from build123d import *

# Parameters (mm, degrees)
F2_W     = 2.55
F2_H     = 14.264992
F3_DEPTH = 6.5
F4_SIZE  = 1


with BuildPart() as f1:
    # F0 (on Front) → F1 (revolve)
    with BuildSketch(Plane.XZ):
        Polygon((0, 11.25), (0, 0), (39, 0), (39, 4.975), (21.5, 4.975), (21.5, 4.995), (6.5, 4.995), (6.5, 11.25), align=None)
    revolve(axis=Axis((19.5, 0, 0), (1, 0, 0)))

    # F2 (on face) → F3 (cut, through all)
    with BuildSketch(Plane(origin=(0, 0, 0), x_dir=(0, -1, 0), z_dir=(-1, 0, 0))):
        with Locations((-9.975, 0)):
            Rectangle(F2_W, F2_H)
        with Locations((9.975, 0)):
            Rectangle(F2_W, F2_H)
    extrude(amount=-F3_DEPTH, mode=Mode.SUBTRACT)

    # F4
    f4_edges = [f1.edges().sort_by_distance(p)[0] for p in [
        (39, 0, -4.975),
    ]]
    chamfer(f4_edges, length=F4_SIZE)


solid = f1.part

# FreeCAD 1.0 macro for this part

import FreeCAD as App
import Part
import Sketcher
from FreeCAD import Vector
Q = App.Units.Quantity


def edges_at(feature, points):
    """Names of the edges that pass closest to the given points."""
    edges = feature.Shape.Edges
    near = lambda p: min(range(len(edges)), key=lambda i: edges[i].distToShape(Part.Vertex(*p))[0])
    return sorted({f"Edge{near(p) + 1}" for p in points})


def add_polygon(sketch, points):
    """Adds a closed chain of lines whose ends are joined by coincident constraints."""
    first, n = sketch.GeometryCount, len(points)
    for a, b in zip(points, points[1:] + points[:1]):
        sketch.addGeometry(Part.LineSegment(App.Vector(*a, 0), App.Vector(*b, 0)), False)
    for i in range(n):
        sketch.addConstraint(Sketcher.Constraint("Coincident", first + i, 2, first + (i + 1) % n, 1))

doc = App.newDocument("Part")
body = doc.addObject("PartDesign::Body", "Body")

# Sketch on XZ plane
sketch1 = body.newObject("Sketcher::SketchObject", "Sketch")
sketch1.AttachmentSupport = (doc.getObject("XZ_Plane"), [""])
sketch1.MapMode = "FlatFace"
add_polygon(sketch1, [(0, 11.25), (0, 0), (39, 0), (39, 4.975), (21.5, 4.975), (21.5, 4.995), (6.5, 4.995), (6.5, 11.25)])  # lines 0-7
sketch1.addConstraint([
    Sketcher.Constraint("Vertical", 0),
    Sketcher.Constraint("Horizontal", 1),
    Sketcher.Constraint("Vertical", 2),
    Sketcher.Constraint("Horizontal", 3),
    Sketcher.Constraint("Vertical", 4),
    Sketcher.Constraint("Horizontal", 5),
    Sketcher.Constraint("Vertical", 6),
    Sketcher.Constraint("Horizontal", 7),
    Sketcher.Constraint("Coincident", 0, 2, -1, 1),
    Sketcher.Constraint("DistanceX", 1, 1, 1, 2, Q("39 mm")),
    Sketcher.Constraint("DistanceX", 5, 2, 5, 1, Q("15 mm")),
    Sketcher.Constraint("DistanceX", 3, 2, 3, 1, Q("17.5 mm")),
    Sketcher.Constraint("DistanceY", 0, 2, 0, 1, Q("11.25 mm")),
    Sketcher.Constraint("DistanceY", 4, 1, 4, 2, Q("0.02 mm")),
    Sketcher.Constraint("DistanceY", 2, 1, 2, 2, Q("4.975 mm")),
])
revolution = body.newObject("PartDesign::Revolution", "Revolution")
revolution.Profile = sketch1
revolution.ReferenceAxis = (sketch1, ["H_Axis"])
revolution.Angle = 360

# Sketch on YZ plane
sketch2 = body.newObject("Sketcher::SketchObject", "Sketch001")
sketch2.AttachmentSupport = (doc.getObject("YZ_Plane"), [""])
sketch2.MapMode = "FlatFace"
add_polygon(sketch2, [(11.25, 7.132496), (11.25, -7.132496), (8.7, -7.132496), (8.7, 7.132496)])  # lines 0-3
add_polygon(sketch2, [(-8.7, 7.132496), (-8.7, -7.132496), (-11.25, -7.132496), (-11.25, 7.132496)])  # lines 4-7
sketch2.addConstraint([
    Sketcher.Constraint("Vertical", 0),
    Sketcher.Constraint("Horizontal", 1),
    Sketcher.Constraint("Vertical", 2),
    Sketcher.Constraint("Horizontal", 3),
    Sketcher.Constraint("Vertical", 4),
    Sketcher.Constraint("Horizontal", 5),
    Sketcher.Constraint("Vertical", 6),
    Sketcher.Constraint("Horizontal", 7),
    Sketcher.Constraint("Symmetric", 2, 2, 4, 2, -1, 1),
    Sketcher.Constraint("Symmetric", 0, 2, 6, 2, -1, 1),
    Sketcher.Constraint("Horizontal", 1, 2, 4, 2),
    Sketcher.Constraint("DistanceX", 1, 2, 1, 1, Q("2.55 mm")),
    Sketcher.Constraint("DistanceX", -1, 1, 1, 2, Q("8.7 mm")),
    Sketcher.Constraint("DistanceY", 0, 2, 0, 1, Q("14.264992 mm")),
])
pocket1 = body.newObject("PartDesign::Pocket", "Pocket")
pocket1.Profile = sketch2
pocket1.Type = "ThroughAll"
pocket1.Reversed = True
doc.recompute()

chamfer = body.newObject("PartDesign::Chamfer", "Chamfer")
chamfer.Base = (pocket1, edges_at(pocket1, [(39, 0, -4.975)]))
chamfer.Size = 1

doc.recompute()
